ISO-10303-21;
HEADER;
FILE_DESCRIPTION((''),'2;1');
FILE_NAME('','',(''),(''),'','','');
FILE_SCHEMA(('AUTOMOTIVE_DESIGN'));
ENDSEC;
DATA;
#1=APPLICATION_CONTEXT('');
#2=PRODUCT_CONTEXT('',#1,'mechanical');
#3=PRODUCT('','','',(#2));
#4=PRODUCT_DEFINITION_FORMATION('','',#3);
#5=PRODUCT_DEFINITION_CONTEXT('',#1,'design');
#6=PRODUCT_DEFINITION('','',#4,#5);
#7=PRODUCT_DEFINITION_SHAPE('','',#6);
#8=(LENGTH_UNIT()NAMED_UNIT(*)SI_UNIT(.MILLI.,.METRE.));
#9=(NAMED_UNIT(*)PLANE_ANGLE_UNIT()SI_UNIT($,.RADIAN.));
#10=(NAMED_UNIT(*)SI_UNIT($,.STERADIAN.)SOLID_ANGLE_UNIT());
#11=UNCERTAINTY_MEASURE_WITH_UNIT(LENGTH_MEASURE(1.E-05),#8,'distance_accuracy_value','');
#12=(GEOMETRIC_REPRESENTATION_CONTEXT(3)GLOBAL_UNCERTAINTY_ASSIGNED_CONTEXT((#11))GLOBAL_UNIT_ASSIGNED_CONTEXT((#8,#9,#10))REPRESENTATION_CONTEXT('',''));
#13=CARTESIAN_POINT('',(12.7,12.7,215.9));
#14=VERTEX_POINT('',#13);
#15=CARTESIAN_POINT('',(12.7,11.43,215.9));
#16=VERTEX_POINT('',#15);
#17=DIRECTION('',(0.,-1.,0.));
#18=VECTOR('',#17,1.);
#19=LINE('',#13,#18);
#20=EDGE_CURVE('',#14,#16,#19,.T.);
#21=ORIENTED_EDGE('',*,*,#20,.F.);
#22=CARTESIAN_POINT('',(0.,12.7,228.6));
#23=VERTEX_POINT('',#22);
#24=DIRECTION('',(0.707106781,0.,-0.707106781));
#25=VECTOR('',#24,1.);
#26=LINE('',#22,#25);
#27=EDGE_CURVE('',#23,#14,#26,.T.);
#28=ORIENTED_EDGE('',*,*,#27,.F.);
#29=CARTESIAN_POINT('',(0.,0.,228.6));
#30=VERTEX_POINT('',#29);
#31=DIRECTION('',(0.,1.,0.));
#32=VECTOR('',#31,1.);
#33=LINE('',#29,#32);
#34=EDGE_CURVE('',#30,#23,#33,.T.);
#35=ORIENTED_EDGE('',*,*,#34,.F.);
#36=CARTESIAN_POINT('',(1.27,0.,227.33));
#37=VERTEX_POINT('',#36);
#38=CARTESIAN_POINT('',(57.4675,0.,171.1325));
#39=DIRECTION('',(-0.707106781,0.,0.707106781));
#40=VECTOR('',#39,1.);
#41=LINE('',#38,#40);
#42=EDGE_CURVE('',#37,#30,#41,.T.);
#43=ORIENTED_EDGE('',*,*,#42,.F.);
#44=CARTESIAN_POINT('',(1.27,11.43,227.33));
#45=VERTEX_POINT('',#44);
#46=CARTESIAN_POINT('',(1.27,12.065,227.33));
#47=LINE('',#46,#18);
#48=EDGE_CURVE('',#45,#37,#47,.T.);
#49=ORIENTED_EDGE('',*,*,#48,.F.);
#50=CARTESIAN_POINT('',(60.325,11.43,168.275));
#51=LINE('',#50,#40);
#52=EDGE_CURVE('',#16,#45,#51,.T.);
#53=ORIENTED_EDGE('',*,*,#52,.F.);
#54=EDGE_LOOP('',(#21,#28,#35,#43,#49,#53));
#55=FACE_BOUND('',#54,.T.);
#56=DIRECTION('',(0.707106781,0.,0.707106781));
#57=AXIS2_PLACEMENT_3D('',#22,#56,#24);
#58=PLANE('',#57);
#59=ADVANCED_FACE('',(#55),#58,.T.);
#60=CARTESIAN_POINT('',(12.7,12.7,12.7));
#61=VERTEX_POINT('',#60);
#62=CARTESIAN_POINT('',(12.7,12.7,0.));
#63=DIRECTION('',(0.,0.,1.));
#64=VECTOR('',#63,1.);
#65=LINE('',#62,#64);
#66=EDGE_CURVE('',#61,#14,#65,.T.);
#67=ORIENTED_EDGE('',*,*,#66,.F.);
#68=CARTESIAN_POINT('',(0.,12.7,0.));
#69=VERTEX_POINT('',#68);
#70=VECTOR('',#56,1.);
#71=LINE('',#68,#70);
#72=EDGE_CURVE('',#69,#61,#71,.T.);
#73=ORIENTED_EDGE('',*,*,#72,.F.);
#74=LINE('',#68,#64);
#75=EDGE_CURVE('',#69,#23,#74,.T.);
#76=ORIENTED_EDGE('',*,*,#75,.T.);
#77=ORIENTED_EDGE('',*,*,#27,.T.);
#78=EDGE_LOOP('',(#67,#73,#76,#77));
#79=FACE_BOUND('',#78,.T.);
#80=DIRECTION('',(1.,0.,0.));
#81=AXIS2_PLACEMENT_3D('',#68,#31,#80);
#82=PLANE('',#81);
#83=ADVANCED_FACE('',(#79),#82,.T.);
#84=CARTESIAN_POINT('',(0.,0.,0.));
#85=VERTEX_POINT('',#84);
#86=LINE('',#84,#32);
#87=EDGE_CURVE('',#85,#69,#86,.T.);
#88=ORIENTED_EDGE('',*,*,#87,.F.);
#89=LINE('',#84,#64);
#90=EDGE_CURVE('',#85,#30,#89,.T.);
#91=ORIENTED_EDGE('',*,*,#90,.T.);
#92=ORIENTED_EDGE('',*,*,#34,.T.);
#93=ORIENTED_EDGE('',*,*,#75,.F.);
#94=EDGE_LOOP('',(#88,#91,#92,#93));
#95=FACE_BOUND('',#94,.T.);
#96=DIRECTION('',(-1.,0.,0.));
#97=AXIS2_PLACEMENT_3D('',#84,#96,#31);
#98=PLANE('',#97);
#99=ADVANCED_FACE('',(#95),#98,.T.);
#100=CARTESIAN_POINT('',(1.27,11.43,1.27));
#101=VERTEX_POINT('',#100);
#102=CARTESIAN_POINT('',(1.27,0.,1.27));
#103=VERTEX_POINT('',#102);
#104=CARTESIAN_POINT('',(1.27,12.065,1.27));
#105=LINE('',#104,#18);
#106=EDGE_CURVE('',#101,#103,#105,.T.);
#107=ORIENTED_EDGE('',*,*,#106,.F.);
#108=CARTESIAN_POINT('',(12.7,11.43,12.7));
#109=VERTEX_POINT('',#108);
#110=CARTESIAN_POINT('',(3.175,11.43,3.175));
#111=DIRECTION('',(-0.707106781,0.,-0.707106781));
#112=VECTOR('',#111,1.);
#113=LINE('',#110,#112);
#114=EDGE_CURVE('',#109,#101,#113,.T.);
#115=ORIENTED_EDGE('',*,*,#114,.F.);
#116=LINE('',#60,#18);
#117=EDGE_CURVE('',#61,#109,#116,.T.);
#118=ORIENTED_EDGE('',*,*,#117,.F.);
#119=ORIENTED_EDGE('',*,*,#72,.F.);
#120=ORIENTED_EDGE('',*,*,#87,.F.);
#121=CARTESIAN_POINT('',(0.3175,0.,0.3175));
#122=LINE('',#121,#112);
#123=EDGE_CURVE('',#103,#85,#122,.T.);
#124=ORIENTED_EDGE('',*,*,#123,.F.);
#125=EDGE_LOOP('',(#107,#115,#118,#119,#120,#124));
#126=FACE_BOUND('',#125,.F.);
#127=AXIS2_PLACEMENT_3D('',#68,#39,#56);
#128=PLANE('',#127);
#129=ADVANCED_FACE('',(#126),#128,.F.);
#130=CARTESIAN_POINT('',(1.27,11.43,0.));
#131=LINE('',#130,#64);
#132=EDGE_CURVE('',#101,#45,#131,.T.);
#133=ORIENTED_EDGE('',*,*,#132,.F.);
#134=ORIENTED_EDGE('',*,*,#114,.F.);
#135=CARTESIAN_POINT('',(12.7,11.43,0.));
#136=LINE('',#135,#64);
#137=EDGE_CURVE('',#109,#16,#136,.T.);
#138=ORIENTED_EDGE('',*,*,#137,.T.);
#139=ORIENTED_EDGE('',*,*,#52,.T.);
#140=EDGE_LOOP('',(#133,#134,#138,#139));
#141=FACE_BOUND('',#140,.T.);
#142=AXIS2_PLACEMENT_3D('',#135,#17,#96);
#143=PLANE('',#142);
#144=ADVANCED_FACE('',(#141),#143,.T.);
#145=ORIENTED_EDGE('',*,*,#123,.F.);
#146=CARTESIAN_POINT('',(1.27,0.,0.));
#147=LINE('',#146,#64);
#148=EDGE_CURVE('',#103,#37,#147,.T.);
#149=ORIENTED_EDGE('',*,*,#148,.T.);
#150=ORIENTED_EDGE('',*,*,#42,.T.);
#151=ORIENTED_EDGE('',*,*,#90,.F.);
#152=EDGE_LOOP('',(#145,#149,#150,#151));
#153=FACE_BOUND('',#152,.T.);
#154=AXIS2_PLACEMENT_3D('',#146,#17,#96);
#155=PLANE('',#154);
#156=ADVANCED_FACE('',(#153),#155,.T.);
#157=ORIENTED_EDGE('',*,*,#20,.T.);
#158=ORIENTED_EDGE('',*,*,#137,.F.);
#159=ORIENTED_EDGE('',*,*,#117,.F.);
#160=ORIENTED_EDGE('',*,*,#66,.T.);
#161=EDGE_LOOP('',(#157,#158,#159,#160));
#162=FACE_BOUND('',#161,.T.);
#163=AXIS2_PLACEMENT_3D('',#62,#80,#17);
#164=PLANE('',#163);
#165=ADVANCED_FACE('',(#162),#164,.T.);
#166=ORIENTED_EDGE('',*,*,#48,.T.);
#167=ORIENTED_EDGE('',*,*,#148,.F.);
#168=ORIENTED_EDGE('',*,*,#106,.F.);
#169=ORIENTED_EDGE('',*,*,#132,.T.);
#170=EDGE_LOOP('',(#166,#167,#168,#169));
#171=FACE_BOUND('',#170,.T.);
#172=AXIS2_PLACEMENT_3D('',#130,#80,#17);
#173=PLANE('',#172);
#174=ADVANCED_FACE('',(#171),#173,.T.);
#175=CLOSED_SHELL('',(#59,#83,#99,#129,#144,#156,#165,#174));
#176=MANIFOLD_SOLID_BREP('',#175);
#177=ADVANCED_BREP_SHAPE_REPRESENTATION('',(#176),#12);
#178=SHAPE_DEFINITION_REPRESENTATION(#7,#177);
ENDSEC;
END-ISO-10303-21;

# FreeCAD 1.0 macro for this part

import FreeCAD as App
import Part
import Sketcher
from FreeCAD import Vector
Q = App.Units.Quantity

doc = App.newDocument("Part")
body = doc.addObject("PartDesign::Body", "Body")

# Sketch on XY plane
sketch1 = doc.addObject("Sketcher::SketchObject", "Sketch")
body.addObject(sketch1)
sketch1.AttachmentSupport = (doc.XY_Plane, [""])
sketch1.MapMode = "FlatFace"
sketch1.addGeometry(Part.LineSegment(Vector(0, 12.7, 0), Vector(0, 0, 0)), False)
sketch1.addGeometry(Part.LineSegment(Vector(0, 0, 0), Vector(1.27, 0, 0)), False)
sketch1.addGeometry(Part.LineSegment(Vector(1.27, 0, 0), Vector(1.27, 11.43, 0)), False)
sketch1.addGeometry(Part.LineSegment(Vector(1.27, 11.43, 0), Vector(12.7, 11.43, 0)), False)
sketch1.addGeometry(Part.LineSegment(Vector(12.7, 11.43, 0), Vector(12.7, 12.7, 0)), False)
sketch1.addGeometry(Part.LineSegment(Vector(12.7, 12.7, 0), Vector(0, 12.7, 0)), False)
sketch1.addConstraint(Sketcher.Constraint("Coincident", 0, 2, 1, 1))
sketch1.addConstraint(Sketcher.Constraint("Coincident", 1, 2, 2, 1))
sketch1.addConstraint(Sketcher.Constraint("Coincident", 2, 2, 3, 1))
sketch1.addConstraint(Sketcher.Constraint("Coincident", 3, 2, 4, 1))
sketch1.addConstraint(Sketcher.Constraint("Coincident", 4, 2, 5, 1))
sketch1.addConstraint(Sketcher.Constraint("Coincident", 5, 2, 0, 1))
sketch1.addConstraint(Sketcher.Constraint("Vertical", 0))
sketch1.addConstraint(Sketcher.Constraint("Horizontal", 1))
sketch1.addConstraint(Sketcher.Constraint("Vertical", 2))
sketch1.addConstraint(Sketcher.Constraint("Horizontal", 3))
sketch1.addConstraint(Sketcher.Constraint("Vertical", 4))
sketch1.addConstraint(Sketcher.Constraint("Horizontal", 5))
sketch1.addConstraint(Sketcher.Constraint("Coincident", 0, 2, -1, 1))
sketch1.addConstraint(Sketcher.Constraint("Equal", 5, 0))
sketch1.addConstraint(Sketcher.Constraint("Equal", 3, 2))
sketch1.addConstraint(Sketcher.Constraint("DistanceX", 5, 2, 5, 1, Q("0.5 in")))
sketch1.addConstraint(Sketcher.Constraint("DistanceX", 1, 1, 1, 2, Q("0.05 in")))
pad1 = doc.addObject("PartDesign::Pad", "Pad")
body.addObject(pad1)
pad1.Profile = sketch1
pad1.Length = Q("9 in")

# Sketch on XZ plane
sketch2 = doc.addObject("Sketcher::SketchObject", "Sketch001")
body.addObject(sketch2)
sketch2.AttachmentSupport = (doc.XZ_Plane, [""])
sketch2.MapMode = "FlatFace"
sketch2.AttachmentOffset = App.Placement(Vector(0, 0, -0.5 * 25.4), App.Rotation())
sketch2.addGeometry(Part.LineSegment(Vector(12.7, 228.6, 0), Vector(12.7, 215.9, 0)), False)
sketch2.addGeometry(Part.LineSegment(Vector(12.7, 215.9, 0), Vector(0, 228.6, 0)), False)
sketch2.addGeometry(Part.LineSegment(Vector(0, 228.6, 0), Vector(12.7, 228.6, 0)), False)
sketch2.addGeometry(Part.LineSegment(Vector(12.7, 0, 0), Vector(0, 0, 0)), False)
sketch2.addGeometry(Part.LineSegment(Vector(0, 0, 0), Vector(12.7, 12.7, 0)), False)
sketch2.addGeometry(Part.LineSegment(Vector(12.7, 12.7, 0), Vector(12.7, 0, 0)), False)
sketch2.addConstraint(Sketcher.Constraint("Coincident", 0, 2, 1, 1))
sketch2.addConstraint(Sketcher.Constraint("Coincident", 1, 2, 2, 1))
sketch2.addConstraint(Sketcher.Constraint("Coincident", 2, 2, 0, 1))
sketch2.addConstraint(Sketcher.Constraint("Coincident", 3, 2, 4, 1))
sketch2.addConstraint(Sketcher.Constraint("Coincident", 4, 2, 5, 1))
sketch2.addConstraint(Sketcher.Constraint("Coincident", 5, 2, 3, 1))
sketch2.addConstraint(Sketcher.Constraint("Vertical", 0))
sketch2.addConstraint(Sketcher.Constraint("Horizontal", 2))
sketch2.addConstraint(Sketcher.Constraint("Horizontal", 3))
sketch2.addConstraint(Sketcher.Constraint("Vertical", 5))
sketch2.addConstraint(Sketcher.Constraint("Coincident", 3, 2, -1, 1))
sketch2.addConstraint(Sketcher.Constraint("PointOnObject", 1, 2, -2))
sketch2.addConstraint(Sketcher.Constraint("Perpendicular", 1, 4))
sketch2.addConstraint(Sketcher.Constraint("Vertical", 2, 2, 4, 2))
sketch2.addConstraint(Sketcher.Constraint("Equal", 3, 0))
sketch2.addConstraint(Sketcher.Constraint("DistanceX", 2, 1, 2, 2, Q("0.5 in")))
sketch2.addConstraint(Sketcher.Constraint("DistanceY", -1, 1, 1, 2, Q("9 in")))
pocket1 = doc.addObject("PartDesign::Pocket", "Pocket")
body.addObject(pocket1)
pocket1.Profile = sketch2
pocket1.Length = Q("9 in")
pocket1.Reversed = True

doc.recompute()
